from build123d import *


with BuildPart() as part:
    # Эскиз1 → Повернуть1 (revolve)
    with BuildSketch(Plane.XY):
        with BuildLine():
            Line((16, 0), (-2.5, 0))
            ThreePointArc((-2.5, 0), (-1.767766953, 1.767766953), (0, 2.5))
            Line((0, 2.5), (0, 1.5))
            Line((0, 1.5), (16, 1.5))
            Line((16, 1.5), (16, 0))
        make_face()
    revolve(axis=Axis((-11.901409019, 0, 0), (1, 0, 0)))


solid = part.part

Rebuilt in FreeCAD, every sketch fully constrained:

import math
import FreeCAD as App
import Part
import Sketcher
from FreeCAD import Vector

doc = App.newDocument("Part")
body = doc.addObject("PartDesign::Body", "Body")

# Sketch on XY plane
sketch1 = body.newObject("Sketcher::SketchObject", "Sketch")
sketch1.AttachmentSupport = (doc.getObject("XY_Plane"), [""])
sketch1.MapMode = "FlatFace"
sketch1.addGeometry([
    Part.LineSegment(Vector(-2.5, 0, 0), Vector(16, 0, 0)),  # 0
    Part.LineSegment(Vector(16, 0, 0), Vector(16, 1.5, 0)),  # 1
    Part.LineSegment(Vector(16, 1.5, 0), Vector(0, 1.5, 0)),  # 2
    Part.LineSegment(Vector(0, 1.5, 0), Vector(0, 2.5, 0)),  # 3
    Part.ArcOfCircle(Part.Circle(Vector(0, 0, 0), Vector(0, 0, 1), 2.5), math.radians(90), math.radians(180)),  # 4
], False)
sketch1.addConstraint([
    Sketcher.Constraint("Coincident", 0, 2, 1, 1),
    Sketcher.Constraint("Coincident", 1, 2, 2, 1),
    Sketcher.Constraint("Coincident", 2, 2, 3, 1),
    Sketcher.Constraint("Coincident", 3, 2, 4, 1),
    Sketcher.Constraint("Coincident", 4, 2, 0, 1),
    Sketcher.Constraint("Horizontal", 0),
    Sketcher.Constraint("Vertical", 1),
    Sketcher.Constraint("Horizontal", 2),
    Sketcher.Constraint("Vertical", 3),
    Sketcher.Constraint("Coincident", 4, 3, -1, 1),
    Sketcher.Constraint("PointOnObject", 0, 2, -1),
    Sketcher.Constraint("PointOnObject", 2, 2, -2),
    Sketcher.Constraint("Radius", 4, 2.5),
    Sketcher.Constraint("DistanceX", 2, 2, 2, 1, 16.0),
    Sketcher.Constraint("DistanceY", 3, 1, 3, 2, 1.0),
])
revolution = body.newObject("PartDesign::Revolution", "Revolution")
revolution.Profile = sketch1
revolution.ReferenceAxis = (sketch1, ["H_Axis"])
revolution.Angle = 360

doc.recompute()
